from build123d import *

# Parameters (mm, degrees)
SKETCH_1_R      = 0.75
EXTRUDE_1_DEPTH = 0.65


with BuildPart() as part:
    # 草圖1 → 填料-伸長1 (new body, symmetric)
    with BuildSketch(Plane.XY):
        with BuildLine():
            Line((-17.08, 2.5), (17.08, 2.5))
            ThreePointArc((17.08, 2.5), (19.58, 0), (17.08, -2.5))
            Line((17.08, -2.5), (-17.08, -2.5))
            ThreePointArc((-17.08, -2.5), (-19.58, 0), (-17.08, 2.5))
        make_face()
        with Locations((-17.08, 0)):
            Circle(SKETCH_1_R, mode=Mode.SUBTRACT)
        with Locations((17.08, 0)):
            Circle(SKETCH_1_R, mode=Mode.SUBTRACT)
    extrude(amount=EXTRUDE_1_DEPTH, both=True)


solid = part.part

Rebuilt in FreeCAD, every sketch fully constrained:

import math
import FreeCAD as App
import Part
import Sketcher

doc = App.newDocument("Part")
params = doc.addObject("Spreadsheet::Sheet", "Params")
for row, (alias, value) in enumerate([
    ("sketch1_diameter", "1.5 mm"),
    ("sketch1_radius", "2.5 mm"),
    ("sketch1_width", "34.16 mm"),
    ("pad1_length", "1.3 mm"),
], start=1):
    params.set(f"A{row}", alias)
    params.set(f"B{row}", "=" + value)
    params.setAlias(f"B{row}", alias)

body = doc.addObject("PartDesign::Body", "Body")

# Sketch on XY plane
sketch1 = doc.addObject("Sketcher::SketchObject", "Sketch")
body.addObject(sketch1)
sketch1.AttachmentSupport = (doc.XY_Plane, [""])
sketch1.MapMode = "FlatFace"
sketch1.addGeometry([
    Part.LineSegment(App.Vector(17.1, 2.5, 0), App.Vector(-17.1, 2.5, 0)),  # 0
    Part.ArcOfCircle(Part.Circle(App.Vector(-17.1, 0, 0), App.Vector(0, 0, 1), 2.5), math.radians(90), math.radians(270)),  # 1
    Part.LineSegment(App.Vector(-17.1, -2.5, 0), App.Vector(17.1, -2.5, 0)),  # 2
    Part.ArcOfCircle(Part.Circle(App.Vector(17.1, 0, 0), App.Vector(0, 0, 1), 2.5), math.radians(-90), math.radians(90)),  # 3
    Part.Circle(App.Vector(17.1, 0, 0), App.Vector(0, 0, 1), 0.8),  # 4
    Part.Circle(App.Vector(-17.1, 0, 0), App.Vector(0, 0, 1), 0.8),  # 5
], False)
sketch1.addConstraint([
    Sketcher.Constraint("Tangent", 0, 2, 1, 1),
    Sketcher.Constraint("Tangent", 1, 2, 2, 1),
    Sketcher.Constraint("Tangent", 2, 2, 3, 1),
    Sketcher.Constraint("Tangent", 3, 2, 0, 1),
    Sketcher.Constraint("Horizontal", 0),
    Sketcher.Constraint("Horizontal", 2),
    Sketcher.Constraint("Coincident", 4, 3, 3, 3),
    Sketcher.Constraint("Coincident", 5, 3, 1, 3),
    Sketcher.Constraint("Equal", 4, 5),
    Sketcher.Constraint("Symmetric", 1, 3, 3, 3, -1, 1),
    Sketcher.Constraint("Diameter", 4, 1.5),
    Sketcher.Constraint("Radius", 1, 2.5),
    Sketcher.Constraint("DistanceX", 0, 2, 0, 1, 34.16),
])
sketch1.setExpression("Constraints[10]", "Params.sketch1_diameter")
sketch1.setExpression("Constraints[11]", "Params.sketch1_radius")
sketch1.setExpression("Constraints[12]", "Params.sketch1_width")
pad1 = doc.addObject("PartDesign::Pad", "Pad")
body.addObject(pad1)
pad1.Profile = sketch1
pad1.setExpression("Length", "Params.pad1_length")
pad1.Midplane = True

doc.recompute()
